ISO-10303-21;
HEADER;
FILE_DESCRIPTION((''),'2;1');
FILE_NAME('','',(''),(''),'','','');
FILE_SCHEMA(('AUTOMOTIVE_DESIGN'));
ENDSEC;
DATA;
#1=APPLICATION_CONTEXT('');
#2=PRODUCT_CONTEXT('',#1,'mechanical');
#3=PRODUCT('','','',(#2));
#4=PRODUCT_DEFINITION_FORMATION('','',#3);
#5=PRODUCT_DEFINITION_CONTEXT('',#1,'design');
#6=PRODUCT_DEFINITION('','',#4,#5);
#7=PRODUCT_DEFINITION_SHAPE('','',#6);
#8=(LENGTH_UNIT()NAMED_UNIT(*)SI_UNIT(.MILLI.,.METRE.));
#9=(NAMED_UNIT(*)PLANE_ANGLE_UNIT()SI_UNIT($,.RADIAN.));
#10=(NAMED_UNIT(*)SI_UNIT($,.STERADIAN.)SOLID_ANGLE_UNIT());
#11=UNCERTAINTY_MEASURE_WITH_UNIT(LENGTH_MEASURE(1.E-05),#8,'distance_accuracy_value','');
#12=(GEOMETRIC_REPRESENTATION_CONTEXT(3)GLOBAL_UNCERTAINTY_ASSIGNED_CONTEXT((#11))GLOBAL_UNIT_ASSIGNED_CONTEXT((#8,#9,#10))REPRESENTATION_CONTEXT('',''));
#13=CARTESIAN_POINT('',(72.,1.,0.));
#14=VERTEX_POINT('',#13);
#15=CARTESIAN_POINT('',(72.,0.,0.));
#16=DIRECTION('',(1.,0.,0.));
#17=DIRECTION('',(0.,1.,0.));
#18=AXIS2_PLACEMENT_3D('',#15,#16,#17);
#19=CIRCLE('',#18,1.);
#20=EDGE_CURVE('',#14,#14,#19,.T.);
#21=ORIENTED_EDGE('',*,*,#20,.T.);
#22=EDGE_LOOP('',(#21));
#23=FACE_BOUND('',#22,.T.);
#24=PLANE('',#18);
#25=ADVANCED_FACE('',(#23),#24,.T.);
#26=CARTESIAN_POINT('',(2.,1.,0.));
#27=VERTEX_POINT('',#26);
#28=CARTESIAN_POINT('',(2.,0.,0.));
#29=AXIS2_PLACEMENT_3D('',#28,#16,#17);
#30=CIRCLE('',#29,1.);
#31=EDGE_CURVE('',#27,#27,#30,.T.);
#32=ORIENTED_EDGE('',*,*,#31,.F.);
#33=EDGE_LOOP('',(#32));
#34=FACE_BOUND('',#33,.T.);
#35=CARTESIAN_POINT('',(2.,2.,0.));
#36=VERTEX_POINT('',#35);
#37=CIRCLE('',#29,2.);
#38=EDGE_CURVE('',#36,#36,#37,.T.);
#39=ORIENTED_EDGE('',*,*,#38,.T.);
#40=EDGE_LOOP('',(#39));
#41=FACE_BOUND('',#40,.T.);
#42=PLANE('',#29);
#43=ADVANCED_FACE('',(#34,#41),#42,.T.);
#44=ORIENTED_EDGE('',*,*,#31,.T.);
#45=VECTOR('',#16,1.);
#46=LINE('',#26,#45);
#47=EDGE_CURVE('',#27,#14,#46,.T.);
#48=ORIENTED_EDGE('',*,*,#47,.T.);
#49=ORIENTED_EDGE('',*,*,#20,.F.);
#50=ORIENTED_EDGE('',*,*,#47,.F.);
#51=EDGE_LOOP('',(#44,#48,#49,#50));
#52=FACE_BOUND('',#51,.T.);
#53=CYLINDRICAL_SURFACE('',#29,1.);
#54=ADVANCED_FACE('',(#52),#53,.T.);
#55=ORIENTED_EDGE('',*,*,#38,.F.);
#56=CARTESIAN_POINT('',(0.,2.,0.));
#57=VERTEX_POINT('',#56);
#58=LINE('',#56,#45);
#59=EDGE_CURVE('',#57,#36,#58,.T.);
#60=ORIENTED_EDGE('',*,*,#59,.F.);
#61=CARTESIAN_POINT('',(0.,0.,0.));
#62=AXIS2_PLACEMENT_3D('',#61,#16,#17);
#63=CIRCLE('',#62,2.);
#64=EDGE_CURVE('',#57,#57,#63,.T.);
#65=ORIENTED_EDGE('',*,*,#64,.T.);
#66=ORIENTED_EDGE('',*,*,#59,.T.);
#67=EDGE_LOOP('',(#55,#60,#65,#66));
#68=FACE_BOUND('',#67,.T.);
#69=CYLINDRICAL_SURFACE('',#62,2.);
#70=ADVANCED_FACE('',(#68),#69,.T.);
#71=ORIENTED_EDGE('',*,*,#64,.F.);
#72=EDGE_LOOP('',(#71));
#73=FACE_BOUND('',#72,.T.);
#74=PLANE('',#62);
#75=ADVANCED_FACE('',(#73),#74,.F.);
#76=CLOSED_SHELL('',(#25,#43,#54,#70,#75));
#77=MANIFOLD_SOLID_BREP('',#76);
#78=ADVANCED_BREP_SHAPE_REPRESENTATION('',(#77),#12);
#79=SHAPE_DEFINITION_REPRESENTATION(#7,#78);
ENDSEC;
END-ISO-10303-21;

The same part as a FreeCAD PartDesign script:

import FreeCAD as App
import Part
import Sketcher
Q = App.Units.Quantity


def add_polygon(sketch, points):
    """Adds a closed chain of lines whose ends are joined by coincident constraints."""
    first, n = sketch.GeometryCount, len(points)
    for a, b in zip(points, points[1:] + points[:1]):
        sketch.addGeometry(Part.LineSegment(App.Vector(*a, 0), App.Vector(*b, 0)), False)
    for i in range(n):
        sketch.addConstraint(Sketcher.Constraint("Coincident", first + i, 2, first + (i + 1) % n, 1))

doc = App.newDocument("Part")
body = doc.addObject("PartDesign::Body", "Body")

# Sketch on XY plane
sketch1 = body.newObject("Sketcher::SketchObject", "Sketch")
sketch1.AttachmentSupport = (doc.getObject("XY_Plane"), [""])
sketch1.MapMode = "FlatFace"
add_polygon(sketch1, [(0, 2), (0, 0), (72, 0), (72, 1), (2, 1), (2, 2)])  # lines 0-5
sketch1.addConstraint(Sketcher.Constraint("Vertical", 0))
sketch1.addConstraint(Sketcher.Constraint("Horizontal", 1))
sketch1.addConstraint(Sketcher.Constraint("Vertical", 2))
sketch1.addConstraint(Sketcher.Constraint("Horizontal", 3))
sketch1.addConstraint(Sketcher.Constraint("Vertical", 4))
sketch1.addConstraint(Sketcher.Constraint("Horizontal", 5))
sketch1.addConstraint(Sketcher.Constraint("Coincident", 0, 2, -1, 1))
sketch1.addConstraint(Sketcher.Constraint("Equal", 5, 0))
sketch1.addConstraint(Sketcher.Constraint("Equal", 2, 4))
sketch1.addConstraint(Sketcher.Constraint("DistanceX", 5, 2, 5, 1, Q("2 mm")))
sketch1.addConstraint(Sketcher.Constraint("DistanceX", 1, 1, 1, 2, Q("72 mm")))
revolution = body.newObject("PartDesign::Revolution", "Revolution")
revolution.Profile = sketch1
revolution.ReferenceAxis = (sketch1, ["H_Axis"])
revolution.Angle = 360

doc.recompute()
